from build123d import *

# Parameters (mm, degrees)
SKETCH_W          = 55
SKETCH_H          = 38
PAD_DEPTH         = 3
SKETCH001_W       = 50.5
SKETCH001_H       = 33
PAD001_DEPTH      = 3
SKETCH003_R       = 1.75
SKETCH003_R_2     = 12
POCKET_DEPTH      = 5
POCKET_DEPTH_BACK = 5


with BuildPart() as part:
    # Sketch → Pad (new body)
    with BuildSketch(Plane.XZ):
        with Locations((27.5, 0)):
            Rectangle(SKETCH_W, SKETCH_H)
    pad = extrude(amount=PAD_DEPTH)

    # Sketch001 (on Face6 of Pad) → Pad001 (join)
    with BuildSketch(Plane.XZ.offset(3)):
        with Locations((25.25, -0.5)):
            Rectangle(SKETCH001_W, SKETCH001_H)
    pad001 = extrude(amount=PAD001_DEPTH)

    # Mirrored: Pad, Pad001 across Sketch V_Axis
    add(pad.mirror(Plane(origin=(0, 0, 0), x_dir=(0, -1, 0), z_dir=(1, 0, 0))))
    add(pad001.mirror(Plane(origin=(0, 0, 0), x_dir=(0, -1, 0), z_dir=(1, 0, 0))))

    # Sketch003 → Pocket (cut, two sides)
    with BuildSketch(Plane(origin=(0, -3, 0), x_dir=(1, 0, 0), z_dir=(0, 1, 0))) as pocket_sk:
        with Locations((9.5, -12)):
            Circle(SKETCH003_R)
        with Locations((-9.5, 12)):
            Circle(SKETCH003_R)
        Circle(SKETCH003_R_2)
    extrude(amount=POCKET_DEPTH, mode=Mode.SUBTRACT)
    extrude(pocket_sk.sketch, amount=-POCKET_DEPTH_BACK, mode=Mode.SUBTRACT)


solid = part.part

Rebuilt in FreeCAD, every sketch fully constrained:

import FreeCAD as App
import Part
import Sketcher

doc = App.newDocument("Part")
body = doc.addObject("PartDesign::Body", "Body")

sketch1 = doc.addObject("Sketcher::SketchObject", "Sketch")
body.addObject(sketch1)
sketch1.AttachmentSupport = (doc.XZ_Plane, [""])
sketch1.MapMode = "FlatFace"
sketch1.addGeometry(Part.LineSegment(App.Vector(0, 19, 0), App.Vector(0, -19, 0)), False)
sketch1.addGeometry(Part.LineSegment(App.Vector(0, -19, 0), App.Vector(55, -19, 0)), False)
sketch1.addGeometry(Part.LineSegment(App.Vector(55, -19, 0), App.Vector(55, 19, 0)), False)
sketch1.addGeometry(Part.LineSegment(App.Vector(55, 19, 0), App.Vector(0, 19, 0)), False)
sketch1.addConstraint(Sketcher.Constraint("Coincident", 0, 2, 1, 1))
sketch1.addConstraint(Sketcher.Constraint("Coincident", 1, 2, 2, 1))
sketch1.addConstraint(Sketcher.Constraint("Coincident", 2, 2, 3, 1))
sketch1.addConstraint(Sketcher.Constraint("Coincident", 3, 2, 0, 1))
sketch1.addConstraint(Sketcher.Constraint("Vertical", 0))
sketch1.addConstraint(Sketcher.Constraint("Horizontal", 1))
sketch1.addConstraint(Sketcher.Constraint("Vertical", 2))
sketch1.addConstraint(Sketcher.Constraint("Horizontal", 3))
sketch1.addConstraint(Sketcher.Constraint("Symmetric", 0, 2, 3, 2, -1, 1))
sketch1.addConstraint(Sketcher.Constraint("DistanceX", 1, 1, 1, 2, 55.0))
sketch1.addConstraint(Sketcher.Constraint("DistanceY", 0, 2, 0, 1, 38.0))
pad1 = doc.addObject("PartDesign::Pad", "Pad")
body.addObject(pad1)
pad1.Profile = sketch1
pad1.Length = 3

sketch2 = doc.addObject("Sketcher::SketchObject", "Sketch001")
body.addObject(sketch2)
sketch2.AttachmentSupport = (doc.XZ_Plane, [""])
sketch2.MapMode = "FlatFace"
sketch2.AttachmentOffset = App.Placement(App.Vector(0, 0, 3), App.Rotation())
sketch2.addGeometry(Part.LineSegment(App.Vector(0, 16, 0), App.Vector(0, -17, 0)), False)
sketch2.addGeometry(Part.LineSegment(App.Vector(0, -17, 0), App.Vector(50, -17, 0)), False)
sketch2.addGeometry(Part.LineSegment(App.Vector(50, -17, 0), App.Vector(50, 16, 0)), False)
sketch2.addGeometry(Part.LineSegment(App.Vector(50, 16, 0), App.Vector(0, 16, 0)), False)
sketch2.addConstraint(Sketcher.Constraint("Coincident", 0, 2, 1, 1))
sketch2.addConstraint(Sketcher.Constraint("Coincident", 1, 2, 2, 1))
sketch2.addConstraint(Sketcher.Constraint("Coincident", 2, 2, 3, 1))
sketch2.addConstraint(Sketcher.Constraint("Coincident", 3, 2, 0, 1))
sketch2.addConstraint(Sketcher.Constraint("Vertical", 0))
sketch2.addConstraint(Sketcher.Constraint("Horizontal", 1))
sketch2.addConstraint(Sketcher.Constraint("Vertical", 2))
sketch2.addConstraint(Sketcher.Constraint("Horizontal", 3))
sketch2.addConstraint(Sketcher.Constraint("PointOnObject", 0, 2, -2))
sketch2.addConstraint(Sketcher.Constraint("DistanceY", 0, 2, 0, 1, 33.0))
sketch2.addConstraint(Sketcher.Constraint("DistanceX", 1, 1, 1, 2, 50.5))
sketch2.addConstraint(Sketcher.Constraint("DistanceY", 0, 2, -1, 1, 17.0))
pad2 = doc.addObject("PartDesign::Pad", "Pad001")
body.addObject(pad2)
pad2.Profile = sketch2
pad2.Length = 3
doc.recompute()

mirrored = doc.addObject("PartDesign::Mirrored", "Mirrored")
body.addObject(mirrored)
mirrored.Originals = [pad1, pad2]
mirrored.MirrorPlane = (doc.YZ_Plane, [""])
body.Tip = mirrored

sketch3 = doc.addObject("Sketcher::SketchObject", "Sketch002")
body.addObject(sketch3)
sketch3.AttachmentSupport = (doc.XZ_Plane, [""])
sketch3.MapMode = "FlatFace"
sketch3.AttachmentOffset = App.Placement(App.Vector(0, 0, 3), App.Rotation())
sketch3.addGeometry(Part.Circle(App.Vector(9.5, 12, 0), App.Vector(0, 0, 1), 1.8), False)
sketch3.addGeometry(Part.Circle(App.Vector(-9.5, -12, 0), App.Vector(0, 0, 1), 1.8), False)
sketch3.addGeometry(Part.Circle(App.Vector(0, 0, 0), App.Vector(0, 0, 1), 12), False)
sketch3.addConstraint(Sketcher.Constraint("Coincident", 2, 3, -1, 1))
sketch3.addConstraint(Sketcher.Constraint("Equal", 0, 1))
sketch3.addConstraint(Sketcher.Constraint("Symmetric", 0, 3, 1, 3, -1, 1))
sketch3.addConstraint(Sketcher.Constraint("Diameter", 2, 24.0))
sketch3.addConstraint(Sketcher.Constraint("Diameter", 0, 3.5))
sketch3.addConstraint(Sketcher.Constraint("DistanceY", -1, 1, 0, 3, 12.0))
sketch3.addConstraint(Sketcher.Constraint("DistanceX", 1, 3, 0, 3, 19.0))
pocket1 = doc.addObject("PartDesign::Pocket", "Pocket")
body.addObject(pocket1)
pocket1.Profile = sketch3
pocket1.Type = "ThroughAll"
pocket1.Midplane = True

doc.recompute()
